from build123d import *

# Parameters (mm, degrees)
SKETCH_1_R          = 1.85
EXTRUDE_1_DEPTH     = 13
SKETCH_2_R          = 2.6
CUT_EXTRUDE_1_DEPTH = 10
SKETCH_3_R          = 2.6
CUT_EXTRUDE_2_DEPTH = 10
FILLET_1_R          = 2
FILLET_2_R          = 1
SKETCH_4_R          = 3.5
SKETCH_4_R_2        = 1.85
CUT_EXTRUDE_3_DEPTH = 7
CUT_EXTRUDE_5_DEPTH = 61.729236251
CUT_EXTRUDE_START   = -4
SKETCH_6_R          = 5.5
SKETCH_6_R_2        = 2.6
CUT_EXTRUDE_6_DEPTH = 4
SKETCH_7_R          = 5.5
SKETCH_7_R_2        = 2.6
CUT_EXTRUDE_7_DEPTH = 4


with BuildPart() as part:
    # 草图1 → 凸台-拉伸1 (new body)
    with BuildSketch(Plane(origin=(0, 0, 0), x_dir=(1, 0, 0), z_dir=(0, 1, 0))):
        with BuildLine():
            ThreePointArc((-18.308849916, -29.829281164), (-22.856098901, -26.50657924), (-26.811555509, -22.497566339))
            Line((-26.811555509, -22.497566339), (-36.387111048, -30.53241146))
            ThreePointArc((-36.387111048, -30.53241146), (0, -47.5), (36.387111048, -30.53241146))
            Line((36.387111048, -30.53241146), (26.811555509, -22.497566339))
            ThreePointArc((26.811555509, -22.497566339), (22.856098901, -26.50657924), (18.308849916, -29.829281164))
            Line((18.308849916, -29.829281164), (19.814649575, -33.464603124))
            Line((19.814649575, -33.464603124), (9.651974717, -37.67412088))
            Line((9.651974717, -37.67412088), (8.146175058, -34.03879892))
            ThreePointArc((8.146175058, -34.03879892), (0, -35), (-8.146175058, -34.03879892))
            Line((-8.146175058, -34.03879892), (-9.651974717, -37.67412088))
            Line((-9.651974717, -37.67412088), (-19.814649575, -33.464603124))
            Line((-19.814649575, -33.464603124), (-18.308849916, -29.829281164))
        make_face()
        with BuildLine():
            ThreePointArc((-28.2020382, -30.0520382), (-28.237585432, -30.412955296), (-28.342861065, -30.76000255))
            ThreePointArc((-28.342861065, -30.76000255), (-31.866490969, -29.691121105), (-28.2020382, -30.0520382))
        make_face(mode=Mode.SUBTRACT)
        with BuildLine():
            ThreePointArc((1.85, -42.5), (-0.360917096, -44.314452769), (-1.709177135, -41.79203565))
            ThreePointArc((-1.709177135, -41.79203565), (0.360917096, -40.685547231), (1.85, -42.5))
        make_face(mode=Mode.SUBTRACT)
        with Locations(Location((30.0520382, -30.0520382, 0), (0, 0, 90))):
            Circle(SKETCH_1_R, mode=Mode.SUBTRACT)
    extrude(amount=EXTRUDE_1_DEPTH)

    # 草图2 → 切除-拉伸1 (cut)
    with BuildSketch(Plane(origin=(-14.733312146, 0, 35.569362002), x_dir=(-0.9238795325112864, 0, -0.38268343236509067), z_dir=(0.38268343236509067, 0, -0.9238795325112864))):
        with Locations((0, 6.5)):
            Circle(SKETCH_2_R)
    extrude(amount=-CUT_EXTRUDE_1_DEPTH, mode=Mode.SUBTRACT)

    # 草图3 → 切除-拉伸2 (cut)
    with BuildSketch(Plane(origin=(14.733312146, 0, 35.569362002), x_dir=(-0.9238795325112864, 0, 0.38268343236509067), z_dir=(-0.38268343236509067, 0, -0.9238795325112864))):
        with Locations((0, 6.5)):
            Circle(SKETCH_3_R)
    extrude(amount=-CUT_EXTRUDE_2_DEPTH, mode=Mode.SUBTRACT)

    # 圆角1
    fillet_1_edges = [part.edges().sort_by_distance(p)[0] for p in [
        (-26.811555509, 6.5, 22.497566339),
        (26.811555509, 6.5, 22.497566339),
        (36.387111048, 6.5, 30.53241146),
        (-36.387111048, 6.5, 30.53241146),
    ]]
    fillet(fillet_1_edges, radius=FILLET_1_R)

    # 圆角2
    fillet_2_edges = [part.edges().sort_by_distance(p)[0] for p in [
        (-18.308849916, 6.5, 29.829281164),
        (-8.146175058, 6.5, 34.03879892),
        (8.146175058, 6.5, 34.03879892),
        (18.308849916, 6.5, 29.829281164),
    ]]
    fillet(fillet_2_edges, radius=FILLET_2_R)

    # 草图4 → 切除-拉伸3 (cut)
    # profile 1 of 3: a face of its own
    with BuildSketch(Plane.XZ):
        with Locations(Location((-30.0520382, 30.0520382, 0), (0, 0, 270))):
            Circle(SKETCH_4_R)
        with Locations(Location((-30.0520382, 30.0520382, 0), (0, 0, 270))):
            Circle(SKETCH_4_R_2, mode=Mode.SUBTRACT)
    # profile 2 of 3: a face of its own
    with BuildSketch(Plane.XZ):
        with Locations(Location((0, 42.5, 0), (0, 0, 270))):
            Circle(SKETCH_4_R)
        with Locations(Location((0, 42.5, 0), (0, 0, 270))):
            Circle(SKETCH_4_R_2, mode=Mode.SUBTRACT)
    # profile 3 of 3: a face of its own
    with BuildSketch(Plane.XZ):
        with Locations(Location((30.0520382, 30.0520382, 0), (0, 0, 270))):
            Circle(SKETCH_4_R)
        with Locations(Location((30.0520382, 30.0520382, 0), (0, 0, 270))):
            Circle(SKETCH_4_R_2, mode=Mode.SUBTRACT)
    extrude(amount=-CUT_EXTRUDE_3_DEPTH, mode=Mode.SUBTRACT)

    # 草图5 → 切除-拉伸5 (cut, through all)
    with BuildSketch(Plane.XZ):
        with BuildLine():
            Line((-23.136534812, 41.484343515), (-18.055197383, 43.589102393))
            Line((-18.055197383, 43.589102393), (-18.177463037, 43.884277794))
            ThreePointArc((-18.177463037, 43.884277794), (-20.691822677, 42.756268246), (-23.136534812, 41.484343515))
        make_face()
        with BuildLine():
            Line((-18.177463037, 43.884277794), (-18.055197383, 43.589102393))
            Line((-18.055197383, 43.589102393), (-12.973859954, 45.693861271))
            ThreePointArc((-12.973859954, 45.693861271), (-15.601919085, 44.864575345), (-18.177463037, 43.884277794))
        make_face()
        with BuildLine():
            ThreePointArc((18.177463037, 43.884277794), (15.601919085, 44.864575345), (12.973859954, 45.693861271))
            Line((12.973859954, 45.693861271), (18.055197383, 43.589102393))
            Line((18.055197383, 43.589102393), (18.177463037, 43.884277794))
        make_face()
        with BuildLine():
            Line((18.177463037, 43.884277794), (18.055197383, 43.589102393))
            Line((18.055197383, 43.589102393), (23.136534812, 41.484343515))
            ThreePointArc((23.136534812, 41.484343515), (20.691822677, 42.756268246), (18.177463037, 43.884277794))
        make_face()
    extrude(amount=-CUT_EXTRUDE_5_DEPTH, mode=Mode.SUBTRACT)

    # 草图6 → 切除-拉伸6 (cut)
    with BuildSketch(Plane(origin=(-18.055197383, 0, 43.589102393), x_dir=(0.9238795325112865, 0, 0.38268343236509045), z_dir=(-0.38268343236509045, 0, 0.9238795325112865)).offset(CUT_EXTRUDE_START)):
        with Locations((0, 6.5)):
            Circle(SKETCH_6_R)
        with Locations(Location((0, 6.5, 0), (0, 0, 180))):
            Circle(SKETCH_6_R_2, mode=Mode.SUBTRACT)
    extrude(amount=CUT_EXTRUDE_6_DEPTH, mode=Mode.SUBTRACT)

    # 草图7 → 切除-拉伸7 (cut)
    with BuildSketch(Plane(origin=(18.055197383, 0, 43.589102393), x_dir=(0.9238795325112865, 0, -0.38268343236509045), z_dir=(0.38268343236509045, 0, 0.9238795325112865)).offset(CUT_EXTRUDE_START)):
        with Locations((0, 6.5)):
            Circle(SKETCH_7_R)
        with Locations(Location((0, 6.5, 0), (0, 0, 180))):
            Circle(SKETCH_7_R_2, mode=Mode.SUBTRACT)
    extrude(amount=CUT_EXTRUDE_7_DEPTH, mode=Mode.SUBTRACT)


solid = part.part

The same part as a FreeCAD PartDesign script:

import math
import FreeCAD as App
import Part
import Sketcher
Q = App.Units.Quantity


def edges_at(feature, points):
    """Names of the edges that pass closest to the given points."""
    edges = feature.Shape.Edges
    near = lambda p: min(range(len(edges)), key=lambda i: edges[i].distToShape(Part.Vertex(*p))[0])
    return sorted({f"Edge{near(p) + 1}" for p in points})

doc = App.newDocument("Part")
body = doc.addObject("PartDesign::Body", "Body")

# Sketch on XZ plane
sketch1 = doc.addObject("Sketcher::SketchObject", "Sketch")
body.addObject(sketch1)
sketch1.AttachmentSupport = (doc.XZ_Plane, [""])
sketch1.MapMode = "FlatFace"
sketch1.addGeometry(Part.ArcOfCircle(Part.Circle(App.Vector(0, 0, 0), App.Vector(0, 0, 1), 35), math.radians(121.54), math.radians(140)), False)
sketch1.addGeometry(Part.LineSegment(App.Vector(-26.8, 22.5, 0), App.Vector(-36.4, 30.5, 0)), False)
sketch1.addGeometry(Part.ArcOfCircle(Part.Circle(App.Vector(0, 0, 0), App.Vector(0, 0, 1), 47.5), math.radians(40), math.radians(140)), False)
sketch1.addGeometry(Part.LineSegment(App.Vector(36.4, 30.5, 0), App.Vector(26.8, 22.5, 0)), False)
sketch1.addGeometry(Part.ArcOfCircle(Part.Circle(App.Vector(0, 0, 0), App.Vector(0, 0, 1), 35), math.radians(40), math.radians(58.46)), False)
sketch1.addGeometry(Part.LineSegment(App.Vector(18.3, 29.8, 0), App.Vector(19.8, 33.5, 0)), False)
sketch1.addGeometry(Part.LineSegment(App.Vector(19.8, 33.5, 0), App.Vector(9.7, 37.7, 0)), False)
sketch1.addGeometry(Part.LineSegment(App.Vector(9.7, 37.7, 0), App.Vector(8.1, 34, 0)), False)
sketch1.addGeometry(Part.ArcOfCircle(Part.Circle(App.Vector(0, 0, 0), App.Vector(0, 0, 1), 35), math.radians(77), math.radians(103)), False)
sketch1.addGeometry(Part.LineSegment(App.Vector(-8.1, 34, 0), App.Vector(-9.7, 37.7, 0)), False)
sketch1.addGeometry(Part.LineSegment(App.Vector(-9.7, 37.7, 0), App.Vector(-19.8, 33.5, 0)), False)
sketch1.addGeometry(Part.LineSegment(App.Vector(-19.8, 33.5, 0), App.Vector(-18.3, 29.8, 0)), False)
sketch1.addGeometry(Part.ArcOfCircle(Part.Circle(App.Vector(0, 42.5, 0), App.Vector(0, 0, 1), 1.9), math.radians(-157), math.radians(0)), False)
sketch1.addGeometry(Part.ArcOfCircle(Part.Circle(App.Vector(0, 42.5, 0), App.Vector(0, 0, 1), 1.9), math.radians(0), math.radians(203)), False)
sketch1.addGeometry(Part.ArcOfCircle(Part.Circle(App.Vector(-30.1, 30.1, 0), App.Vector(0, 0, 1), 1.9), math.radians(23), math.radians(360)), False)
sketch1.addGeometry(Part.ArcOfCircle(Part.Circle(App.Vector(-30.1, 30.1, 0), App.Vector(0, 0, 1), 1.9), math.radians(0), math.radians(22)), False)
sketch1.addGeometry(Part.Circle(App.Vector(30.1, 30.1, 0), App.Vector(0, 0, 1), 1.9), False)
sketch1.addConstraint(Sketcher.Constraint("Coincident", 0, 2, 1, 1))
sketch1.addConstraint(Sketcher.Constraint("Coincident", 1, 2, 2, 2))
sketch1.addConstraint(Sketcher.Constraint("Coincident", 2, 1, 3, 1))
sketch1.addConstraint(Sketcher.Constraint("Coincident", 3, 2, 4, 1))
sketch1.addConstraint(Sketcher.Constraint("Coincident", 4, 2, 5, 1))
sketch1.addConstraint(Sketcher.Constraint("Coincident", 5, 2, 6, 1))
sketch1.addConstraint(Sketcher.Constraint("Coincident", 6, 2, 7, 1))
sketch1.addConstraint(Sketcher.Constraint("Coincident", 7, 2, 8, 1))
sketch1.addConstraint(Sketcher.Constraint("Coincident", 8, 2, 9, 1))
sketch1.addConstraint(Sketcher.Constraint("Coincident", 9, 2, 10, 1))
sketch1.addConstraint(Sketcher.Constraint("Coincident", 10, 2, 11, 1))
sketch1.addConstraint(Sketcher.Constraint("Coincident", 11, 2, 0, 1))
sketch1.addConstraint(Sketcher.Constraint("Tangent", 12, 1, 13, 2))
sketch1.addConstraint(Sketcher.Constraint("Coincident", 13, 1, 12, 2))
sketch1.addConstraint(Sketcher.Constraint("Tangent", 14, 1, 15, 2))
sketch1.addConstraint(Sketcher.Constraint("Coincident", 15, 1, 14, 2))
sketch1.addConstraint(Sketcher.Constraint("Coincident", 0, 3, -1, 1))
sketch1.addConstraint(Sketcher.Constraint("Coincident", 2, 3, -1, 1))
sketch1.addConstraint(Sketcher.Constraint("Coincident", 4, 3, -1, 1))
sketch1.addConstraint(Sketcher.Constraint("Coincident", 8, 3, -1, 1))
sketch1.addConstraint(Sketcher.Constraint("Equal", 0, 4))
sketch1.addConstraint(Sketcher.Constraint("Equal", 4, 8))
sketch1.addConstraint(Sketcher.Constraint("Equal", 13, 14))
sketch1.addConstraint(Sketcher.Constraint("Equal", 15, 16))
sketch1.addConstraint(Sketcher.Constraint("Symmetric", 14, 3, 16, 3, -2))
sketch1.addConstraint(Sketcher.Constraint("Symmetric", 6, 2, 9, 2, -2))
sketch1.addConstraint(Sketcher.Constraint("Symmetric", 5, 2, 10, 2, -2))
sketch1.addConstraint(Sketcher.Constraint("PointOnObject", 12, 3, -2))
sketch1.addConstraint(Sketcher.Constraint("Perpendicular", 5, 6))
sketch1.addConstraint(Sketcher.Constraint("Perpendicular", 6, 7))
sketch1.addConstraint(Sketcher.Constraint("Perpendicular", 9, 10))
sketch1.addConstraint(Sketcher.Constraint("Perpendicular", 10, 11))
sketch1.addConstraint(Sketcher.Constraint("Horizontal", 1, 2, 2, 1))
sketch1.addConstraint(Sketcher.Constraint("Horizontal", 0, 2, 3, 2))
sketch1.addConstraint(Sketcher.Constraint("Horizontal", 12, 3, 13, 1))
sketch1.addConstraint(Sketcher.Constraint("Horizontal", 16, 3, 15, 1))
sketch1.addConstraint(Sketcher.Constraint("Equal", 5, 7))
sketch1.addConstraint(Sketcher.Constraint("Radius", 0, Q("35 mm")))
sketch1.addConstraint(Sketcher.Constraint("Diameter", 16, Q("3.7 mm")))
sketch1.addConstraint(Sketcher.Constraint("Radius", 2, Q("47.5 mm")))
sketch1.addConstraint(Sketcher.Constraint("Angle", 1, Q("140 deg")))
sketch1.addConstraint(Sketcher.Constraint("Distance", 6, Q("11 mm")))
sketch1.addConstraint(Sketcher.Constraint("Angle", 5, Q("67.5 deg")))
sketch1.addConstraint(Sketcher.Constraint("DistanceY", -1, 1, 12, 3, Q("42.5 mm")))
sketch1.addConstraint(Sketcher.Constraint("DistanceX", 4, 2, 5, 2, Q("1.5058 mm")))
sketch1.addConstraint(Sketcher.Constraint("DistanceY", 14, 1, 10, 2, Q("2.704601 mm")))
sketch1.addConstraint(Sketcher.Constraint("DistanceX", 14, 3, -1, 1, Q("30.052038 mm")))
sketch1.addConstraint(Sketcher.Constraint("DistanceY", -1, 1, 14, 3, Q("30.052038 mm")))
sketch1.addConstraint(Sketcher.Constraint("DistanceX", 1, 2, -1, 1, Q("36.387111 mm")))
sketch1.addConstraint(Sketcher.Constraint("DistanceX", 12, 1, 6, 2, Q("11.361152 mm")))
pad1 = doc.addObject("PartDesign::Pad", "Pad")
body.addObject(pad1)
pad1.Profile = sketch1
pad1.Length = 13
pad1.Reversed = True

# Sketch on an angled plane
sketch2 = doc.addObject("Sketcher::SketchObject", "Sketch001")
body.addObject(sketch2)
sketch2.Placement = App.Placement(App.Vector(-14.733312, 0, 35.569362), App.Rotation(App.Vector(-0.923879533, 0, -0.382683432), App.Vector(0, 1.000000001, 0), App.Vector(0.382683432, 0, -0.923879533), "ZXY"))
sketch2.addGeometry(Part.Circle(App.Vector(0, 6.5, 0), App.Vector(0, 0, 1), 2.6), False)
sketch2.addConstraint(Sketcher.Constraint("PointOnObject", 0, 3, -2))
sketch2.addConstraint(Sketcher.Constraint("Diameter", 0, Q("5.2 mm")))
sketch2.addConstraint(Sketcher.Constraint("DistanceY", -1, 1, 0, 3, Q("6.5 mm")))
pocket1 = doc.addObject("PartDesign::Pocket", "Pocket")
body.addObject(pocket1)
pocket1.Profile = sketch2
pocket1.Length = 10

# Sketch on an angled plane
sketch3 = doc.addObject("Sketcher::SketchObject", "Sketch002")
body.addObject(sketch3)
sketch3.Placement = App.Placement(App.Vector(14.733312, 0, 35.569362), App.Rotation(App.Vector(-0.923879533, 0, 0.382683432), App.Vector(0, 1.000000001, 0), App.Vector(-0.382683432, 0, -0.923879533), "ZXY"))
sketch3.addGeometry(Part.Circle(App.Vector(0, 6.5, 0), App.Vector(0, 0, 1), 2.6), False)
sketch3.addConstraint(Sketcher.Constraint("PointOnObject", 0, 3, -2))
sketch3.addConstraint(Sketcher.Constraint("Diameter", 0, Q("5.2 mm")))
sketch3.addConstraint(Sketcher.Constraint("DistanceY", -1, 1, 0, 3, Q("6.5 mm")))
pocket2 = doc.addObject("PartDesign::Pocket", "Pocket001")
body.addObject(pocket2)
pocket2.Profile = sketch3
pocket2.Length = 10
doc.recompute()

fillet = doc.addObject("PartDesign::Fillet", "Fillet")
body.addObject(fillet)
fillet.Base = (pocket2, edges_at(pocket2, [
    (-26.812, 6.5, 22.498),
    (26.812, 6.5, 22.498),
    (36.387, 6.5, 30.532),
    (-36.387, 6.5, 30.532),
]))
fillet.Radius = 2
doc.recompute()

fillet2 = doc.addObject("PartDesign::Fillet", "Fillet001")
body.addObject(fillet2)
fillet2.Base = (fillet, edges_at(fillet, [
    (-18.309, 6.5, 29.829),
    (-8.146, 6.5, 34.039),
    (8.146, 6.5, 34.039),
    (18.309, 6.5, 29.829),
]))
fillet2.Radius = 1

# Sketch on XZ plane
sketch4 = doc.addObject("Sketcher::SketchObject", "Sketch003")
body.addObject(sketch4)
sketch4.AttachmentSupport = (doc.XZ_Plane, [""])
sketch4.MapMode = "FlatFace"
sketch4.addGeometry(Part.Circle(App.Vector(-30.1, 30.1, 0), App.Vector(0, 0, 1), 3.5), False)
sketch4.addGeometry(Part.Circle(App.Vector(-30.1, 30.1, 0), App.Vector(0, 0, 1), 1.9), False)
sketch4.addGeometry(Part.Circle(App.Vector(0, 42.5, 0), App.Vector(0, 0, 1), 3.5), False)
sketch4.addGeometry(Part.Circle(App.Vector(0, 42.5, 0), App.Vector(0, 0, 1), 1.9), False)
sketch4.addGeometry(Part.Circle(App.Vector(30.1, 30.1, 0), App.Vector(0, 0, 1), 3.5), False)
sketch4.addGeometry(Part.Circle(App.Vector(30.1, 30.1, 0), App.Vector(0, 0, 1), 1.9), False)
sketch4.addConstraint(Sketcher.Constraint("Coincident", 1, 3, 0, 3))
sketch4.addConstraint(Sketcher.Constraint("Coincident", 3, 3, 2, 3))
sketch4.addConstraint(Sketcher.Constraint("Coincident", 5, 3, 4, 3))
sketch4.addConstraint(Sketcher.Constraint("Equal", 0, 2))
sketch4.addConstraint(Sketcher.Constraint("Equal", 1, 3))
sketch4.addConstraint(Sketcher.Constraint("Equal", 2, 4))
sketch4.addConstraint(Sketcher.Constraint("Equal", 3, 5))
sketch4.addConstraint(Sketcher.Constraint("Symmetric", 0, 3, 4, 3, -2))
sketch4.addConstraint(Sketcher.Constraint("PointOnObject", 2, 3, -2))
sketch4.addConstraint(Sketcher.Constraint("Diameter", 0, Q("7 mm")))
sketch4.addConstraint(Sketcher.Constraint("Diameter", 1, Q("3.7 mm")))
sketch4.addConstraint(Sketcher.Constraint("DistanceY", -1, 1, 2, 3, Q("42.5 mm")))
sketch4.addConstraint(Sketcher.Constraint("DistanceX", 0, 3, -1, 1, Q("30.052038 mm")))
sketch4.addConstraint(Sketcher.Constraint("DistanceY", -1, 1, 0, 3, Q("30.052038 mm")))
pocket3 = doc.addObject("PartDesign::Pocket", "Pocket002")
body.addObject(pocket3)
pocket3.Profile = sketch4
pocket3.Length = 7

# Sketch on XZ plane
sketch5 = doc.addObject("Sketcher::SketchObject", "Sketch004")
body.addObject(sketch5)
sketch5.AttachmentSupport = (doc.XZ_Plane, [""])
sketch5.MapMode = "FlatFace"
sketch5.addGeometry(Part.LineSegment(App.Vector(-23, 41, 0), App.Vector(-13, 46, 0)), False)
sketch5.addGeometry(Part.ArcOfCircle(Part.Circle(App.Vector(0, 0, 0), App.Vector(0, 0, 1), 47), math.radians(105.85), math.radians(112.5)), False)
sketch5.addGeometry(Part.ArcOfCircle(Part.Circle(App.Vector(0, 0, 0), App.Vector(0, 0, 1), 47), math.radians(112.5), math.radians(119.15)), False)
sketch5.addGeometry(Part.ArcOfCircle(Part.Circle(App.Vector(0, 0, 0), App.Vector(0, 0, 1), 47), math.radians(67.5), math.radians(74.15)), False)
sketch5.addGeometry(Part.LineSegment(App.Vector(13, 46, 0), App.Vector(23, 41, 0)), False)
sketch5.addGeometry(Part.ArcOfCircle(Part.Circle(App.Vector(0, 0, 0), App.Vector(0, 0, 1), 47), math.radians(60.85), math.radians(67.5)), False)
sketch5.addConstraint(Sketcher.Constraint("Coincident", 0, 2, 1, 1))
sketch5.addConstraint(Sketcher.Constraint("Tangent", 1, 2, 2, 1))
sketch5.addConstraint(Sketcher.Constraint("Coincident", 2, 2, 0, 1))
sketch5.addConstraint(Sketcher.Constraint("Coincident", 3, 2, 4, 1))
sketch5.addConstraint(Sketcher.Constraint("Coincident", 4, 2, 5, 1))
sketch5.addConstraint(Sketcher.Constraint("Tangent", 5, 2, 3, 1))
sketch5.addConstraint(Sketcher.Constraint("Coincident", 1, 3, -1, 1))
sketch5.addConstraint(Sketcher.Constraint("Coincident", 3, 3, -1, 1))
sketch5.addConstraint(Sketcher.Constraint("Equal", 1, 2))
sketch5.addConstraint(Sketcher.Constraint("Equal", 2, 3))
sketch5.addConstraint(Sketcher.Constraint("Equal", 3, 5))
sketch5.addConstraint(Sketcher.Constraint("Horizontal", 0, 2, 3, 2))
sketch5.addConstraint(Sketcher.Constraint("Horizontal", 2, 2, 4, 2))
sketch5.addConstraint(Sketcher.Constraint("Horizontal", 1, 2, 5, 2))
sketch5.addConstraint(Sketcher.Constraint("Radius", 1, Q("47.5 mm")))
sketch5.addConstraint(Sketcher.Constraint("Distance", 0, Q("11 mm")))
sketch5.addConstraint(Sketcher.Constraint("Angle", 0, Q("22.5 deg")))
sketch5.addConstraint(Sketcher.Constraint("DistanceX", 2, 2, 1, 2, Q("4.959072 mm")))
pocket4 = doc.addObject("PartDesign::Pocket", "Pocket003")
body.addObject(pocket4)
pocket4.Profile = sketch5
pocket4.Type = "ThroughAll"

# Sketch on an angled plane
sketch6 = doc.addObject("Sketcher::SketchObject", "Sketch005")
body.addObject(sketch6)
sketch6.Placement = App.Placement(App.Vector(-16.524464, 0, 39.893584), App.Rotation(App.Vector(0.923879533, 0, 0.382683432), App.Vector(0, 1.000000001, 0), App.Vector(-0.382683432, 0, 0.923879533), "ZXY"))
sketch6.addGeometry(Part.Circle(App.Vector(0, 6.5, 0), App.Vector(0, 0, 1), 5.5), False)
sketch6.addGeometry(Part.Circle(App.Vector(0, 6.5, 0), App.Vector(0, 0, 1), 2.6), False)
sketch6.addConstraint(Sketcher.Constraint("Coincident", 1, 3, 0, 3))
sketch6.addConstraint(Sketcher.Constraint("PointOnObject", 0, 3, -2))
sketch6.addConstraint(Sketcher.Constraint("Diameter", 0, Q("11 mm")))
sketch6.addConstraint(Sketcher.Constraint("Diameter", 1, Q("5.2 mm")))
sketch6.addConstraint(Sketcher.Constraint("DistanceY", -1, 1, 0, 3, Q("6.5 mm")))
pocket5 = doc.addObject("PartDesign::Pocket", "Pocket004")
body.addObject(pocket5)
pocket5.Profile = sketch6
pocket5.Length = 4
pocket5.Reversed = True

# Sketch on an angled plane
sketch7 = doc.addObject("Sketcher::SketchObject", "Sketch006")
body.addObject(sketch7)
sketch7.Placement = App.Placement(App.Vector(16.524464, 0, 39.893584), App.Rotation(App.Vector(0.923879533, 0, -0.382683432), App.Vector(0, 1.000000001, 0), App.Vector(0.382683432, 0, 0.923879533), "ZXY"))
sketch7.addGeometry(Part.Circle(App.Vector(0, 6.5, 0), App.Vector(0, 0, 1), 5.5), False)
sketch7.addGeometry(Part.Circle(App.Vector(0, 6.5, 0), App.Vector(0, 0, 1), 2.6), False)
sketch7.addConstraint(Sketcher.Constraint("Coincident", 1, 3, 0, 3))
sketch7.addConstraint(Sketcher.Constraint("PointOnObject", 0, 3, -2))
sketch7.addConstraint(Sketcher.Constraint("Diameter", 0, Q("11 mm")))
sketch7.addConstraint(Sketcher.Constraint("Diameter", 1, Q("5.2 mm")))
sketch7.addConstraint(Sketcher.Constraint("DistanceY", -1, 1, 0, 3, Q("6.5 mm")))
pocket6 = doc.addObject("PartDesign::Pocket", "Pocket005")
body.addObject(pocket6)
pocket6.Profile = sketch7
pocket6.Length = 4
pocket6.Reversed = True

doc.recompute()
